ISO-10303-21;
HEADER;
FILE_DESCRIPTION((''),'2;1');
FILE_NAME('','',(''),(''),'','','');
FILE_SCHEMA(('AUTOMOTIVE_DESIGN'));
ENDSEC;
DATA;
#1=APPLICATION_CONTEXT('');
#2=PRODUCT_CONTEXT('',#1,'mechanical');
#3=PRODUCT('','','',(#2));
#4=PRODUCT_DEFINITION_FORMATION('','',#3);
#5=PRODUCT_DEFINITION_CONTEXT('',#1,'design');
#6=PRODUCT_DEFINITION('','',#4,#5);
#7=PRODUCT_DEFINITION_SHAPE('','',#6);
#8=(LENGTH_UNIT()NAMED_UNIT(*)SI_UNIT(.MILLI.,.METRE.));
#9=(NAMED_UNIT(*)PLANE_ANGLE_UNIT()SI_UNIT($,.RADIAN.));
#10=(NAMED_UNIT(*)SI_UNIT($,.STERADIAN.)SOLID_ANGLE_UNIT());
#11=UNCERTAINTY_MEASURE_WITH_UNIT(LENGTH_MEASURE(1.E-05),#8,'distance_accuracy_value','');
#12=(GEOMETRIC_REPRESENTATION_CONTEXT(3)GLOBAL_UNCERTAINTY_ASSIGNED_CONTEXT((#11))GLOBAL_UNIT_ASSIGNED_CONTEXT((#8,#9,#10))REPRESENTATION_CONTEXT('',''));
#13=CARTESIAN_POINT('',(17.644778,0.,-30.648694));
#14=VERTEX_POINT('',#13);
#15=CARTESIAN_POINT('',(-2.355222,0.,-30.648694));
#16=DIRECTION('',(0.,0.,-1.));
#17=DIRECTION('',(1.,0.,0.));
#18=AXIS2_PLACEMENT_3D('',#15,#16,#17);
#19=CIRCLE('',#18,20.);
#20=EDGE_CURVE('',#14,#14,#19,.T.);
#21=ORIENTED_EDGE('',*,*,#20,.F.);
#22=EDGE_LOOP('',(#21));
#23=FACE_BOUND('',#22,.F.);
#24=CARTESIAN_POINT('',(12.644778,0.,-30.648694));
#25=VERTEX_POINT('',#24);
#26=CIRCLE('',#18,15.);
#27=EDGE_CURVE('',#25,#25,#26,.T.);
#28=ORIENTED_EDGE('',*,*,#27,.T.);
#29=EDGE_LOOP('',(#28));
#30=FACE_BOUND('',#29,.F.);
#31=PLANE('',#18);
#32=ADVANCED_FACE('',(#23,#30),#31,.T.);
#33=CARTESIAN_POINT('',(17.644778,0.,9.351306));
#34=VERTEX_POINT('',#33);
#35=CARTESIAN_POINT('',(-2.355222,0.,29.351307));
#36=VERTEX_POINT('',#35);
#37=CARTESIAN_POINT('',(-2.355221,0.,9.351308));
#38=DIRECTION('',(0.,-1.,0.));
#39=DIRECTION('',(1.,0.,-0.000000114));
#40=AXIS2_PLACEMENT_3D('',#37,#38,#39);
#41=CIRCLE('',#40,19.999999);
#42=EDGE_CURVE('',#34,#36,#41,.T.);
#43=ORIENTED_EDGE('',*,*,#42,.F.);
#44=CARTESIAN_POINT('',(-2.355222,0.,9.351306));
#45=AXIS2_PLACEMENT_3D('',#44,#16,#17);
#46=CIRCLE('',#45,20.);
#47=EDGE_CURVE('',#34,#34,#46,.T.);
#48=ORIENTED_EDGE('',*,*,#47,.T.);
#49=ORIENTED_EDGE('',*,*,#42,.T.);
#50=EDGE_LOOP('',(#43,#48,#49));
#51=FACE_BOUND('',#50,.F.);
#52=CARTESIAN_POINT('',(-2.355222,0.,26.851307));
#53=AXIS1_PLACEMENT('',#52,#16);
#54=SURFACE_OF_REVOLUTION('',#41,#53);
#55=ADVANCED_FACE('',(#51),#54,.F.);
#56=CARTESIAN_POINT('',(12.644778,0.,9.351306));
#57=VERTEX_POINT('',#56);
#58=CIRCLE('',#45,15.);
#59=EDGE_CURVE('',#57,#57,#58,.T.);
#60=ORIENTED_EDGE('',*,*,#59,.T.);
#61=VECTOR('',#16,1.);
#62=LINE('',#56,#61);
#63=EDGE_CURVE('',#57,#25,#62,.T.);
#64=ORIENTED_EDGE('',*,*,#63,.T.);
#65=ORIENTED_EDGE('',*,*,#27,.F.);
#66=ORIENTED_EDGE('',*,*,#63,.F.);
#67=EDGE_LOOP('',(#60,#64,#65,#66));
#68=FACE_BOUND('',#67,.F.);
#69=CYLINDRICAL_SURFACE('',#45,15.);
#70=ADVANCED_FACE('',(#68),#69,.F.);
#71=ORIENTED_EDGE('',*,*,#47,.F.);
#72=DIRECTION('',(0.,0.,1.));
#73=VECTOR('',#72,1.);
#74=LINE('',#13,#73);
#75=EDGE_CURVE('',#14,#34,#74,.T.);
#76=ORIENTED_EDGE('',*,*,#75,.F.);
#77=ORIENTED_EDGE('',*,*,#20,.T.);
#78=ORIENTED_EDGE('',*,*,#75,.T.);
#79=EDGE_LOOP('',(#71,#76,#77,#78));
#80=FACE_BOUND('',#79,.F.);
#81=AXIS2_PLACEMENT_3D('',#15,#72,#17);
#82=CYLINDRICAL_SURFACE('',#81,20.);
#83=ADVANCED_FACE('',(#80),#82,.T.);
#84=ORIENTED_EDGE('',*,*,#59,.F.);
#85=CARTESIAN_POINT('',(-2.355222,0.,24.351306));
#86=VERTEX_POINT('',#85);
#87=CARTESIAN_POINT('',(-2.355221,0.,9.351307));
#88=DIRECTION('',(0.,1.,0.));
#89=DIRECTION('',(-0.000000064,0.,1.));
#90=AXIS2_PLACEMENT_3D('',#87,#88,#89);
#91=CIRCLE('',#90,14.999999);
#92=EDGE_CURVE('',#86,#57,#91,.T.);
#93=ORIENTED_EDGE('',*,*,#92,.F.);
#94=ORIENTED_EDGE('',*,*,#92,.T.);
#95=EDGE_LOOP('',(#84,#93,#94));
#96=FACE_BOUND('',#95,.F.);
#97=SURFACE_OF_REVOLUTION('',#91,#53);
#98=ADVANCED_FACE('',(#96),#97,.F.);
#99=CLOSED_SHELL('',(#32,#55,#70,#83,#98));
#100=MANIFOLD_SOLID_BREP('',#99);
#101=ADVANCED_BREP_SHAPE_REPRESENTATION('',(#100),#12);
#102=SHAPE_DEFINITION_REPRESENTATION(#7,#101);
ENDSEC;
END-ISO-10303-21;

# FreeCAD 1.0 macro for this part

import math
import FreeCAD as App
import Part
import Sketcher

V = App.Vector
Q = App.Units.Quantity

doc = App.newDocument("Part")
body = doc.addObject("PartDesign::Body", "Body")

# Sketch on XZ plane
sketch1 = doc.addObject("Sketcher::SketchObject", "Sketch")
body.addObject(sketch1)
sketch1.AttachmentSupport = (doc.XZ_Plane, [""])
sketch1.MapMode = "FlatFace"
sketch1.addGeometry(Part.ArcOfCircle(Part.Circle(V(-2.4, 9.4, 0), V(0, 0, 1), 15), math.radians(0), math.radians(90)), False)
sketch1.addGeometry(Part.LineSegment(V(12.6, 9.4, 0), V(12.6, -30.6, 0)), False)
sketch1.addGeometry(Part.LineSegment(V(12.6, -30.6, 0), V(17.6, -30.6, 0)), False)
sketch1.addGeometry(Part.LineSegment(V(17.6, -30.6, 0), V(17.6, 9.4, 0)), False)
sketch1.addGeometry(Part.ArcOfCircle(Part.Circle(V(-2.4, 9.4, 0), V(0, 0, 1), 20), math.radians(0), math.radians(90)), False)
sketch1.addGeometry(Part.LineSegment(V(-2.4, 29.4, 0), V(-2.4, 24.4, 0)), False)
sketch1.addGeometry(Part.LineSegment(V(-2.4, 29.4, 0), V(-2.4, -30.6, 0)), True)  # axis
sketch1.addConstraint(Sketcher.Constraint("Tangent", 0, 1, 1, 1))
sketch1.addConstraint(Sketcher.Constraint("Coincident", 1, 2, 2, 1))
sketch1.addConstraint(Sketcher.Constraint("Coincident", 2, 2, 3, 1))
sketch1.addConstraint(Sketcher.Constraint("Tangent", 3, 2, 4, 1))
sketch1.addConstraint(Sketcher.Constraint("Coincident", 4, 2, 5, 1))
sketch1.addConstraint(Sketcher.Constraint("Coincident", 5, 2, 0, 2))
sketch1.addConstraint(Sketcher.Constraint("Vertical", 1))
sketch1.addConstraint(Sketcher.Constraint("Horizontal", 2))
sketch1.addConstraint(Sketcher.Constraint("Vertical", 3))
sketch1.addConstraint(Sketcher.Constraint("Vertical", 5))
sketch1.addConstraint(Sketcher.Constraint("Vertical", 6))
sketch1.addConstraint(Sketcher.Constraint("Coincident", 4, 3, 0, 3))
sketch1.addConstraint(Sketcher.Constraint("Coincident", 6, 1, 4, 2))
sketch1.addConstraint(Sketcher.Constraint("Horizontal", 2, 2, 6, 2))
sketch1.addConstraint(Sketcher.Constraint("Vertical", 0, 3, 4, 2))
sketch1.addConstraint(Sketcher.Constraint("Radius", 0, Q("14.999999 mm")))
sketch1.addConstraint(Sketcher.Constraint("Radius", 4, Q("19.999999 mm")))
sketch1.addConstraint(Sketcher.Constraint("DistanceY", 1, 2, 1, 1, Q("40 mm")))
sketch1.addConstraint(Sketcher.Constraint("DistanceX", 0, 3, -1, 1, Q("2.355221 mm")))
sketch1.addConstraint(Sketcher.Constraint("DistanceY", -1, 1, 4, 3, Q("9.351308 mm")))
revolution = doc.addObject("PartDesign::Revolution", "Revolution")
body.addObject(revolution)
revolution.Profile = sketch1
revolution.ReferenceAxis = (sketch1, ["Axis0"])
revolution.Angle = 360

doc.recompute()
